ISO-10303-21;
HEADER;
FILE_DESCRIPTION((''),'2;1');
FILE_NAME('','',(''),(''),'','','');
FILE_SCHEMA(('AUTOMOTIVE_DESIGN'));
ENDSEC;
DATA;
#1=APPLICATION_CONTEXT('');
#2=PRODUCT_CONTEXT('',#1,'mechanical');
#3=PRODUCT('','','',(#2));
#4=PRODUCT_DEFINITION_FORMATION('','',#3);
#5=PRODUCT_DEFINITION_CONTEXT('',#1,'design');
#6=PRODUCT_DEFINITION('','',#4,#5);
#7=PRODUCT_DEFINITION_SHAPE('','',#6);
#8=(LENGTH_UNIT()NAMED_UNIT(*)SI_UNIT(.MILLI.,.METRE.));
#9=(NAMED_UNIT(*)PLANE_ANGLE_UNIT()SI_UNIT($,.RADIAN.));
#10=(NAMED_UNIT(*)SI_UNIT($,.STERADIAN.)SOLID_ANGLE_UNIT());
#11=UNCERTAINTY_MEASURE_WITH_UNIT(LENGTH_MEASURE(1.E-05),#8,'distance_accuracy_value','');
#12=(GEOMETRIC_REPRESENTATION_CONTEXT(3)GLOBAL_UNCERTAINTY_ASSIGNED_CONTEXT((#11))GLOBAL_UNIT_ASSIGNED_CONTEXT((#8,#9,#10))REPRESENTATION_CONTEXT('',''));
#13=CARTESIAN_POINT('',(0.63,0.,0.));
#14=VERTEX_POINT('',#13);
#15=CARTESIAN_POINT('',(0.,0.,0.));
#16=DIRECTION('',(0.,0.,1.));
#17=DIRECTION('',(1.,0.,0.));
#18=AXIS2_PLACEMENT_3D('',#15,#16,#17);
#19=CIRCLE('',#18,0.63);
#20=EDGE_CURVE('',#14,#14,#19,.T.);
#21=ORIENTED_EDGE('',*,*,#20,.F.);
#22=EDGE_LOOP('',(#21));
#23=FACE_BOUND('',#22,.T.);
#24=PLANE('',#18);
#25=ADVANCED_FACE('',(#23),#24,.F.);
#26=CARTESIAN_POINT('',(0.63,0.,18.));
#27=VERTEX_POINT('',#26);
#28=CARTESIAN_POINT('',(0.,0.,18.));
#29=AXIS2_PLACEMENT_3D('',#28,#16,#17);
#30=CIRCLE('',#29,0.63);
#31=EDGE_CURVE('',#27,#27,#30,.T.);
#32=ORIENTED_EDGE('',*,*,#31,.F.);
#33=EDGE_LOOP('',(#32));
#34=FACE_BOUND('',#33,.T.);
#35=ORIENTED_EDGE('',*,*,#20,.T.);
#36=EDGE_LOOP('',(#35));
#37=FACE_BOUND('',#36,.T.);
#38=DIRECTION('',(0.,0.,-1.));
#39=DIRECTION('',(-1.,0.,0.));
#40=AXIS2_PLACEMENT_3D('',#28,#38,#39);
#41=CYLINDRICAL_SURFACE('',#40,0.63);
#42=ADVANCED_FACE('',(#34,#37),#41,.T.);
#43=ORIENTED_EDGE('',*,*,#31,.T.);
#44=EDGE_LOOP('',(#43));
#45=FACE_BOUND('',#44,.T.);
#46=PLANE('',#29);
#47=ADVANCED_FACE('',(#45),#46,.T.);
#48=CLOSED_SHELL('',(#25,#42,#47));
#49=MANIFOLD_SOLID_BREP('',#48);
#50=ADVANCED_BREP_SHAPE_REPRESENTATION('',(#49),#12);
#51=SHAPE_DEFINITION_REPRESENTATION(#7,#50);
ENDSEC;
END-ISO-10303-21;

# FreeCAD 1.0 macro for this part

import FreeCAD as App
import Part
import Sketcher
from FreeCAD import Vector

doc = App.newDocument("Part")
params = doc.addObject("Spreadsheet::Sheet", "Params")
for row, (alias, value) in enumerate([
    ("sketch1_diameter", "1.26 mm"),
    ("pad1_length", "18 mm"),
], start=1):
    params.set(f"A{row}", alias)
    params.set(f"B{row}", "=" + value)
    params.setAlias(f"B{row}", alias)

body = doc.addObject("PartDesign::Body", "Body")

# Sketch on XY plane
sketch1 = doc.addObject("Sketcher::SketchObject", "Sketch")
body.addObject(sketch1)
sketch1.AttachmentSupport = (doc.XY_Plane, [""])
sketch1.MapMode = "FlatFace"
sketch1.addGeometry(Part.Circle(Vector(0, 0, 0), Vector(0, 0, 1), 0.6), False)
sketch1.addConstraint(Sketcher.Constraint("Coincident", 0, 3, -1, 1))
sketch1.addConstraint(Sketcher.Constraint("Diameter", 0, 1.26))
sketch1.setExpression("Constraints[1]", "Params.sketch1_diameter")
pad1 = doc.addObject("PartDesign::Pad", "Pad")
body.addObject(pad1)
pad1.Profile = sketch1
pad1.setExpression("Length", "Params.pad1_length")

doc.recompute()
